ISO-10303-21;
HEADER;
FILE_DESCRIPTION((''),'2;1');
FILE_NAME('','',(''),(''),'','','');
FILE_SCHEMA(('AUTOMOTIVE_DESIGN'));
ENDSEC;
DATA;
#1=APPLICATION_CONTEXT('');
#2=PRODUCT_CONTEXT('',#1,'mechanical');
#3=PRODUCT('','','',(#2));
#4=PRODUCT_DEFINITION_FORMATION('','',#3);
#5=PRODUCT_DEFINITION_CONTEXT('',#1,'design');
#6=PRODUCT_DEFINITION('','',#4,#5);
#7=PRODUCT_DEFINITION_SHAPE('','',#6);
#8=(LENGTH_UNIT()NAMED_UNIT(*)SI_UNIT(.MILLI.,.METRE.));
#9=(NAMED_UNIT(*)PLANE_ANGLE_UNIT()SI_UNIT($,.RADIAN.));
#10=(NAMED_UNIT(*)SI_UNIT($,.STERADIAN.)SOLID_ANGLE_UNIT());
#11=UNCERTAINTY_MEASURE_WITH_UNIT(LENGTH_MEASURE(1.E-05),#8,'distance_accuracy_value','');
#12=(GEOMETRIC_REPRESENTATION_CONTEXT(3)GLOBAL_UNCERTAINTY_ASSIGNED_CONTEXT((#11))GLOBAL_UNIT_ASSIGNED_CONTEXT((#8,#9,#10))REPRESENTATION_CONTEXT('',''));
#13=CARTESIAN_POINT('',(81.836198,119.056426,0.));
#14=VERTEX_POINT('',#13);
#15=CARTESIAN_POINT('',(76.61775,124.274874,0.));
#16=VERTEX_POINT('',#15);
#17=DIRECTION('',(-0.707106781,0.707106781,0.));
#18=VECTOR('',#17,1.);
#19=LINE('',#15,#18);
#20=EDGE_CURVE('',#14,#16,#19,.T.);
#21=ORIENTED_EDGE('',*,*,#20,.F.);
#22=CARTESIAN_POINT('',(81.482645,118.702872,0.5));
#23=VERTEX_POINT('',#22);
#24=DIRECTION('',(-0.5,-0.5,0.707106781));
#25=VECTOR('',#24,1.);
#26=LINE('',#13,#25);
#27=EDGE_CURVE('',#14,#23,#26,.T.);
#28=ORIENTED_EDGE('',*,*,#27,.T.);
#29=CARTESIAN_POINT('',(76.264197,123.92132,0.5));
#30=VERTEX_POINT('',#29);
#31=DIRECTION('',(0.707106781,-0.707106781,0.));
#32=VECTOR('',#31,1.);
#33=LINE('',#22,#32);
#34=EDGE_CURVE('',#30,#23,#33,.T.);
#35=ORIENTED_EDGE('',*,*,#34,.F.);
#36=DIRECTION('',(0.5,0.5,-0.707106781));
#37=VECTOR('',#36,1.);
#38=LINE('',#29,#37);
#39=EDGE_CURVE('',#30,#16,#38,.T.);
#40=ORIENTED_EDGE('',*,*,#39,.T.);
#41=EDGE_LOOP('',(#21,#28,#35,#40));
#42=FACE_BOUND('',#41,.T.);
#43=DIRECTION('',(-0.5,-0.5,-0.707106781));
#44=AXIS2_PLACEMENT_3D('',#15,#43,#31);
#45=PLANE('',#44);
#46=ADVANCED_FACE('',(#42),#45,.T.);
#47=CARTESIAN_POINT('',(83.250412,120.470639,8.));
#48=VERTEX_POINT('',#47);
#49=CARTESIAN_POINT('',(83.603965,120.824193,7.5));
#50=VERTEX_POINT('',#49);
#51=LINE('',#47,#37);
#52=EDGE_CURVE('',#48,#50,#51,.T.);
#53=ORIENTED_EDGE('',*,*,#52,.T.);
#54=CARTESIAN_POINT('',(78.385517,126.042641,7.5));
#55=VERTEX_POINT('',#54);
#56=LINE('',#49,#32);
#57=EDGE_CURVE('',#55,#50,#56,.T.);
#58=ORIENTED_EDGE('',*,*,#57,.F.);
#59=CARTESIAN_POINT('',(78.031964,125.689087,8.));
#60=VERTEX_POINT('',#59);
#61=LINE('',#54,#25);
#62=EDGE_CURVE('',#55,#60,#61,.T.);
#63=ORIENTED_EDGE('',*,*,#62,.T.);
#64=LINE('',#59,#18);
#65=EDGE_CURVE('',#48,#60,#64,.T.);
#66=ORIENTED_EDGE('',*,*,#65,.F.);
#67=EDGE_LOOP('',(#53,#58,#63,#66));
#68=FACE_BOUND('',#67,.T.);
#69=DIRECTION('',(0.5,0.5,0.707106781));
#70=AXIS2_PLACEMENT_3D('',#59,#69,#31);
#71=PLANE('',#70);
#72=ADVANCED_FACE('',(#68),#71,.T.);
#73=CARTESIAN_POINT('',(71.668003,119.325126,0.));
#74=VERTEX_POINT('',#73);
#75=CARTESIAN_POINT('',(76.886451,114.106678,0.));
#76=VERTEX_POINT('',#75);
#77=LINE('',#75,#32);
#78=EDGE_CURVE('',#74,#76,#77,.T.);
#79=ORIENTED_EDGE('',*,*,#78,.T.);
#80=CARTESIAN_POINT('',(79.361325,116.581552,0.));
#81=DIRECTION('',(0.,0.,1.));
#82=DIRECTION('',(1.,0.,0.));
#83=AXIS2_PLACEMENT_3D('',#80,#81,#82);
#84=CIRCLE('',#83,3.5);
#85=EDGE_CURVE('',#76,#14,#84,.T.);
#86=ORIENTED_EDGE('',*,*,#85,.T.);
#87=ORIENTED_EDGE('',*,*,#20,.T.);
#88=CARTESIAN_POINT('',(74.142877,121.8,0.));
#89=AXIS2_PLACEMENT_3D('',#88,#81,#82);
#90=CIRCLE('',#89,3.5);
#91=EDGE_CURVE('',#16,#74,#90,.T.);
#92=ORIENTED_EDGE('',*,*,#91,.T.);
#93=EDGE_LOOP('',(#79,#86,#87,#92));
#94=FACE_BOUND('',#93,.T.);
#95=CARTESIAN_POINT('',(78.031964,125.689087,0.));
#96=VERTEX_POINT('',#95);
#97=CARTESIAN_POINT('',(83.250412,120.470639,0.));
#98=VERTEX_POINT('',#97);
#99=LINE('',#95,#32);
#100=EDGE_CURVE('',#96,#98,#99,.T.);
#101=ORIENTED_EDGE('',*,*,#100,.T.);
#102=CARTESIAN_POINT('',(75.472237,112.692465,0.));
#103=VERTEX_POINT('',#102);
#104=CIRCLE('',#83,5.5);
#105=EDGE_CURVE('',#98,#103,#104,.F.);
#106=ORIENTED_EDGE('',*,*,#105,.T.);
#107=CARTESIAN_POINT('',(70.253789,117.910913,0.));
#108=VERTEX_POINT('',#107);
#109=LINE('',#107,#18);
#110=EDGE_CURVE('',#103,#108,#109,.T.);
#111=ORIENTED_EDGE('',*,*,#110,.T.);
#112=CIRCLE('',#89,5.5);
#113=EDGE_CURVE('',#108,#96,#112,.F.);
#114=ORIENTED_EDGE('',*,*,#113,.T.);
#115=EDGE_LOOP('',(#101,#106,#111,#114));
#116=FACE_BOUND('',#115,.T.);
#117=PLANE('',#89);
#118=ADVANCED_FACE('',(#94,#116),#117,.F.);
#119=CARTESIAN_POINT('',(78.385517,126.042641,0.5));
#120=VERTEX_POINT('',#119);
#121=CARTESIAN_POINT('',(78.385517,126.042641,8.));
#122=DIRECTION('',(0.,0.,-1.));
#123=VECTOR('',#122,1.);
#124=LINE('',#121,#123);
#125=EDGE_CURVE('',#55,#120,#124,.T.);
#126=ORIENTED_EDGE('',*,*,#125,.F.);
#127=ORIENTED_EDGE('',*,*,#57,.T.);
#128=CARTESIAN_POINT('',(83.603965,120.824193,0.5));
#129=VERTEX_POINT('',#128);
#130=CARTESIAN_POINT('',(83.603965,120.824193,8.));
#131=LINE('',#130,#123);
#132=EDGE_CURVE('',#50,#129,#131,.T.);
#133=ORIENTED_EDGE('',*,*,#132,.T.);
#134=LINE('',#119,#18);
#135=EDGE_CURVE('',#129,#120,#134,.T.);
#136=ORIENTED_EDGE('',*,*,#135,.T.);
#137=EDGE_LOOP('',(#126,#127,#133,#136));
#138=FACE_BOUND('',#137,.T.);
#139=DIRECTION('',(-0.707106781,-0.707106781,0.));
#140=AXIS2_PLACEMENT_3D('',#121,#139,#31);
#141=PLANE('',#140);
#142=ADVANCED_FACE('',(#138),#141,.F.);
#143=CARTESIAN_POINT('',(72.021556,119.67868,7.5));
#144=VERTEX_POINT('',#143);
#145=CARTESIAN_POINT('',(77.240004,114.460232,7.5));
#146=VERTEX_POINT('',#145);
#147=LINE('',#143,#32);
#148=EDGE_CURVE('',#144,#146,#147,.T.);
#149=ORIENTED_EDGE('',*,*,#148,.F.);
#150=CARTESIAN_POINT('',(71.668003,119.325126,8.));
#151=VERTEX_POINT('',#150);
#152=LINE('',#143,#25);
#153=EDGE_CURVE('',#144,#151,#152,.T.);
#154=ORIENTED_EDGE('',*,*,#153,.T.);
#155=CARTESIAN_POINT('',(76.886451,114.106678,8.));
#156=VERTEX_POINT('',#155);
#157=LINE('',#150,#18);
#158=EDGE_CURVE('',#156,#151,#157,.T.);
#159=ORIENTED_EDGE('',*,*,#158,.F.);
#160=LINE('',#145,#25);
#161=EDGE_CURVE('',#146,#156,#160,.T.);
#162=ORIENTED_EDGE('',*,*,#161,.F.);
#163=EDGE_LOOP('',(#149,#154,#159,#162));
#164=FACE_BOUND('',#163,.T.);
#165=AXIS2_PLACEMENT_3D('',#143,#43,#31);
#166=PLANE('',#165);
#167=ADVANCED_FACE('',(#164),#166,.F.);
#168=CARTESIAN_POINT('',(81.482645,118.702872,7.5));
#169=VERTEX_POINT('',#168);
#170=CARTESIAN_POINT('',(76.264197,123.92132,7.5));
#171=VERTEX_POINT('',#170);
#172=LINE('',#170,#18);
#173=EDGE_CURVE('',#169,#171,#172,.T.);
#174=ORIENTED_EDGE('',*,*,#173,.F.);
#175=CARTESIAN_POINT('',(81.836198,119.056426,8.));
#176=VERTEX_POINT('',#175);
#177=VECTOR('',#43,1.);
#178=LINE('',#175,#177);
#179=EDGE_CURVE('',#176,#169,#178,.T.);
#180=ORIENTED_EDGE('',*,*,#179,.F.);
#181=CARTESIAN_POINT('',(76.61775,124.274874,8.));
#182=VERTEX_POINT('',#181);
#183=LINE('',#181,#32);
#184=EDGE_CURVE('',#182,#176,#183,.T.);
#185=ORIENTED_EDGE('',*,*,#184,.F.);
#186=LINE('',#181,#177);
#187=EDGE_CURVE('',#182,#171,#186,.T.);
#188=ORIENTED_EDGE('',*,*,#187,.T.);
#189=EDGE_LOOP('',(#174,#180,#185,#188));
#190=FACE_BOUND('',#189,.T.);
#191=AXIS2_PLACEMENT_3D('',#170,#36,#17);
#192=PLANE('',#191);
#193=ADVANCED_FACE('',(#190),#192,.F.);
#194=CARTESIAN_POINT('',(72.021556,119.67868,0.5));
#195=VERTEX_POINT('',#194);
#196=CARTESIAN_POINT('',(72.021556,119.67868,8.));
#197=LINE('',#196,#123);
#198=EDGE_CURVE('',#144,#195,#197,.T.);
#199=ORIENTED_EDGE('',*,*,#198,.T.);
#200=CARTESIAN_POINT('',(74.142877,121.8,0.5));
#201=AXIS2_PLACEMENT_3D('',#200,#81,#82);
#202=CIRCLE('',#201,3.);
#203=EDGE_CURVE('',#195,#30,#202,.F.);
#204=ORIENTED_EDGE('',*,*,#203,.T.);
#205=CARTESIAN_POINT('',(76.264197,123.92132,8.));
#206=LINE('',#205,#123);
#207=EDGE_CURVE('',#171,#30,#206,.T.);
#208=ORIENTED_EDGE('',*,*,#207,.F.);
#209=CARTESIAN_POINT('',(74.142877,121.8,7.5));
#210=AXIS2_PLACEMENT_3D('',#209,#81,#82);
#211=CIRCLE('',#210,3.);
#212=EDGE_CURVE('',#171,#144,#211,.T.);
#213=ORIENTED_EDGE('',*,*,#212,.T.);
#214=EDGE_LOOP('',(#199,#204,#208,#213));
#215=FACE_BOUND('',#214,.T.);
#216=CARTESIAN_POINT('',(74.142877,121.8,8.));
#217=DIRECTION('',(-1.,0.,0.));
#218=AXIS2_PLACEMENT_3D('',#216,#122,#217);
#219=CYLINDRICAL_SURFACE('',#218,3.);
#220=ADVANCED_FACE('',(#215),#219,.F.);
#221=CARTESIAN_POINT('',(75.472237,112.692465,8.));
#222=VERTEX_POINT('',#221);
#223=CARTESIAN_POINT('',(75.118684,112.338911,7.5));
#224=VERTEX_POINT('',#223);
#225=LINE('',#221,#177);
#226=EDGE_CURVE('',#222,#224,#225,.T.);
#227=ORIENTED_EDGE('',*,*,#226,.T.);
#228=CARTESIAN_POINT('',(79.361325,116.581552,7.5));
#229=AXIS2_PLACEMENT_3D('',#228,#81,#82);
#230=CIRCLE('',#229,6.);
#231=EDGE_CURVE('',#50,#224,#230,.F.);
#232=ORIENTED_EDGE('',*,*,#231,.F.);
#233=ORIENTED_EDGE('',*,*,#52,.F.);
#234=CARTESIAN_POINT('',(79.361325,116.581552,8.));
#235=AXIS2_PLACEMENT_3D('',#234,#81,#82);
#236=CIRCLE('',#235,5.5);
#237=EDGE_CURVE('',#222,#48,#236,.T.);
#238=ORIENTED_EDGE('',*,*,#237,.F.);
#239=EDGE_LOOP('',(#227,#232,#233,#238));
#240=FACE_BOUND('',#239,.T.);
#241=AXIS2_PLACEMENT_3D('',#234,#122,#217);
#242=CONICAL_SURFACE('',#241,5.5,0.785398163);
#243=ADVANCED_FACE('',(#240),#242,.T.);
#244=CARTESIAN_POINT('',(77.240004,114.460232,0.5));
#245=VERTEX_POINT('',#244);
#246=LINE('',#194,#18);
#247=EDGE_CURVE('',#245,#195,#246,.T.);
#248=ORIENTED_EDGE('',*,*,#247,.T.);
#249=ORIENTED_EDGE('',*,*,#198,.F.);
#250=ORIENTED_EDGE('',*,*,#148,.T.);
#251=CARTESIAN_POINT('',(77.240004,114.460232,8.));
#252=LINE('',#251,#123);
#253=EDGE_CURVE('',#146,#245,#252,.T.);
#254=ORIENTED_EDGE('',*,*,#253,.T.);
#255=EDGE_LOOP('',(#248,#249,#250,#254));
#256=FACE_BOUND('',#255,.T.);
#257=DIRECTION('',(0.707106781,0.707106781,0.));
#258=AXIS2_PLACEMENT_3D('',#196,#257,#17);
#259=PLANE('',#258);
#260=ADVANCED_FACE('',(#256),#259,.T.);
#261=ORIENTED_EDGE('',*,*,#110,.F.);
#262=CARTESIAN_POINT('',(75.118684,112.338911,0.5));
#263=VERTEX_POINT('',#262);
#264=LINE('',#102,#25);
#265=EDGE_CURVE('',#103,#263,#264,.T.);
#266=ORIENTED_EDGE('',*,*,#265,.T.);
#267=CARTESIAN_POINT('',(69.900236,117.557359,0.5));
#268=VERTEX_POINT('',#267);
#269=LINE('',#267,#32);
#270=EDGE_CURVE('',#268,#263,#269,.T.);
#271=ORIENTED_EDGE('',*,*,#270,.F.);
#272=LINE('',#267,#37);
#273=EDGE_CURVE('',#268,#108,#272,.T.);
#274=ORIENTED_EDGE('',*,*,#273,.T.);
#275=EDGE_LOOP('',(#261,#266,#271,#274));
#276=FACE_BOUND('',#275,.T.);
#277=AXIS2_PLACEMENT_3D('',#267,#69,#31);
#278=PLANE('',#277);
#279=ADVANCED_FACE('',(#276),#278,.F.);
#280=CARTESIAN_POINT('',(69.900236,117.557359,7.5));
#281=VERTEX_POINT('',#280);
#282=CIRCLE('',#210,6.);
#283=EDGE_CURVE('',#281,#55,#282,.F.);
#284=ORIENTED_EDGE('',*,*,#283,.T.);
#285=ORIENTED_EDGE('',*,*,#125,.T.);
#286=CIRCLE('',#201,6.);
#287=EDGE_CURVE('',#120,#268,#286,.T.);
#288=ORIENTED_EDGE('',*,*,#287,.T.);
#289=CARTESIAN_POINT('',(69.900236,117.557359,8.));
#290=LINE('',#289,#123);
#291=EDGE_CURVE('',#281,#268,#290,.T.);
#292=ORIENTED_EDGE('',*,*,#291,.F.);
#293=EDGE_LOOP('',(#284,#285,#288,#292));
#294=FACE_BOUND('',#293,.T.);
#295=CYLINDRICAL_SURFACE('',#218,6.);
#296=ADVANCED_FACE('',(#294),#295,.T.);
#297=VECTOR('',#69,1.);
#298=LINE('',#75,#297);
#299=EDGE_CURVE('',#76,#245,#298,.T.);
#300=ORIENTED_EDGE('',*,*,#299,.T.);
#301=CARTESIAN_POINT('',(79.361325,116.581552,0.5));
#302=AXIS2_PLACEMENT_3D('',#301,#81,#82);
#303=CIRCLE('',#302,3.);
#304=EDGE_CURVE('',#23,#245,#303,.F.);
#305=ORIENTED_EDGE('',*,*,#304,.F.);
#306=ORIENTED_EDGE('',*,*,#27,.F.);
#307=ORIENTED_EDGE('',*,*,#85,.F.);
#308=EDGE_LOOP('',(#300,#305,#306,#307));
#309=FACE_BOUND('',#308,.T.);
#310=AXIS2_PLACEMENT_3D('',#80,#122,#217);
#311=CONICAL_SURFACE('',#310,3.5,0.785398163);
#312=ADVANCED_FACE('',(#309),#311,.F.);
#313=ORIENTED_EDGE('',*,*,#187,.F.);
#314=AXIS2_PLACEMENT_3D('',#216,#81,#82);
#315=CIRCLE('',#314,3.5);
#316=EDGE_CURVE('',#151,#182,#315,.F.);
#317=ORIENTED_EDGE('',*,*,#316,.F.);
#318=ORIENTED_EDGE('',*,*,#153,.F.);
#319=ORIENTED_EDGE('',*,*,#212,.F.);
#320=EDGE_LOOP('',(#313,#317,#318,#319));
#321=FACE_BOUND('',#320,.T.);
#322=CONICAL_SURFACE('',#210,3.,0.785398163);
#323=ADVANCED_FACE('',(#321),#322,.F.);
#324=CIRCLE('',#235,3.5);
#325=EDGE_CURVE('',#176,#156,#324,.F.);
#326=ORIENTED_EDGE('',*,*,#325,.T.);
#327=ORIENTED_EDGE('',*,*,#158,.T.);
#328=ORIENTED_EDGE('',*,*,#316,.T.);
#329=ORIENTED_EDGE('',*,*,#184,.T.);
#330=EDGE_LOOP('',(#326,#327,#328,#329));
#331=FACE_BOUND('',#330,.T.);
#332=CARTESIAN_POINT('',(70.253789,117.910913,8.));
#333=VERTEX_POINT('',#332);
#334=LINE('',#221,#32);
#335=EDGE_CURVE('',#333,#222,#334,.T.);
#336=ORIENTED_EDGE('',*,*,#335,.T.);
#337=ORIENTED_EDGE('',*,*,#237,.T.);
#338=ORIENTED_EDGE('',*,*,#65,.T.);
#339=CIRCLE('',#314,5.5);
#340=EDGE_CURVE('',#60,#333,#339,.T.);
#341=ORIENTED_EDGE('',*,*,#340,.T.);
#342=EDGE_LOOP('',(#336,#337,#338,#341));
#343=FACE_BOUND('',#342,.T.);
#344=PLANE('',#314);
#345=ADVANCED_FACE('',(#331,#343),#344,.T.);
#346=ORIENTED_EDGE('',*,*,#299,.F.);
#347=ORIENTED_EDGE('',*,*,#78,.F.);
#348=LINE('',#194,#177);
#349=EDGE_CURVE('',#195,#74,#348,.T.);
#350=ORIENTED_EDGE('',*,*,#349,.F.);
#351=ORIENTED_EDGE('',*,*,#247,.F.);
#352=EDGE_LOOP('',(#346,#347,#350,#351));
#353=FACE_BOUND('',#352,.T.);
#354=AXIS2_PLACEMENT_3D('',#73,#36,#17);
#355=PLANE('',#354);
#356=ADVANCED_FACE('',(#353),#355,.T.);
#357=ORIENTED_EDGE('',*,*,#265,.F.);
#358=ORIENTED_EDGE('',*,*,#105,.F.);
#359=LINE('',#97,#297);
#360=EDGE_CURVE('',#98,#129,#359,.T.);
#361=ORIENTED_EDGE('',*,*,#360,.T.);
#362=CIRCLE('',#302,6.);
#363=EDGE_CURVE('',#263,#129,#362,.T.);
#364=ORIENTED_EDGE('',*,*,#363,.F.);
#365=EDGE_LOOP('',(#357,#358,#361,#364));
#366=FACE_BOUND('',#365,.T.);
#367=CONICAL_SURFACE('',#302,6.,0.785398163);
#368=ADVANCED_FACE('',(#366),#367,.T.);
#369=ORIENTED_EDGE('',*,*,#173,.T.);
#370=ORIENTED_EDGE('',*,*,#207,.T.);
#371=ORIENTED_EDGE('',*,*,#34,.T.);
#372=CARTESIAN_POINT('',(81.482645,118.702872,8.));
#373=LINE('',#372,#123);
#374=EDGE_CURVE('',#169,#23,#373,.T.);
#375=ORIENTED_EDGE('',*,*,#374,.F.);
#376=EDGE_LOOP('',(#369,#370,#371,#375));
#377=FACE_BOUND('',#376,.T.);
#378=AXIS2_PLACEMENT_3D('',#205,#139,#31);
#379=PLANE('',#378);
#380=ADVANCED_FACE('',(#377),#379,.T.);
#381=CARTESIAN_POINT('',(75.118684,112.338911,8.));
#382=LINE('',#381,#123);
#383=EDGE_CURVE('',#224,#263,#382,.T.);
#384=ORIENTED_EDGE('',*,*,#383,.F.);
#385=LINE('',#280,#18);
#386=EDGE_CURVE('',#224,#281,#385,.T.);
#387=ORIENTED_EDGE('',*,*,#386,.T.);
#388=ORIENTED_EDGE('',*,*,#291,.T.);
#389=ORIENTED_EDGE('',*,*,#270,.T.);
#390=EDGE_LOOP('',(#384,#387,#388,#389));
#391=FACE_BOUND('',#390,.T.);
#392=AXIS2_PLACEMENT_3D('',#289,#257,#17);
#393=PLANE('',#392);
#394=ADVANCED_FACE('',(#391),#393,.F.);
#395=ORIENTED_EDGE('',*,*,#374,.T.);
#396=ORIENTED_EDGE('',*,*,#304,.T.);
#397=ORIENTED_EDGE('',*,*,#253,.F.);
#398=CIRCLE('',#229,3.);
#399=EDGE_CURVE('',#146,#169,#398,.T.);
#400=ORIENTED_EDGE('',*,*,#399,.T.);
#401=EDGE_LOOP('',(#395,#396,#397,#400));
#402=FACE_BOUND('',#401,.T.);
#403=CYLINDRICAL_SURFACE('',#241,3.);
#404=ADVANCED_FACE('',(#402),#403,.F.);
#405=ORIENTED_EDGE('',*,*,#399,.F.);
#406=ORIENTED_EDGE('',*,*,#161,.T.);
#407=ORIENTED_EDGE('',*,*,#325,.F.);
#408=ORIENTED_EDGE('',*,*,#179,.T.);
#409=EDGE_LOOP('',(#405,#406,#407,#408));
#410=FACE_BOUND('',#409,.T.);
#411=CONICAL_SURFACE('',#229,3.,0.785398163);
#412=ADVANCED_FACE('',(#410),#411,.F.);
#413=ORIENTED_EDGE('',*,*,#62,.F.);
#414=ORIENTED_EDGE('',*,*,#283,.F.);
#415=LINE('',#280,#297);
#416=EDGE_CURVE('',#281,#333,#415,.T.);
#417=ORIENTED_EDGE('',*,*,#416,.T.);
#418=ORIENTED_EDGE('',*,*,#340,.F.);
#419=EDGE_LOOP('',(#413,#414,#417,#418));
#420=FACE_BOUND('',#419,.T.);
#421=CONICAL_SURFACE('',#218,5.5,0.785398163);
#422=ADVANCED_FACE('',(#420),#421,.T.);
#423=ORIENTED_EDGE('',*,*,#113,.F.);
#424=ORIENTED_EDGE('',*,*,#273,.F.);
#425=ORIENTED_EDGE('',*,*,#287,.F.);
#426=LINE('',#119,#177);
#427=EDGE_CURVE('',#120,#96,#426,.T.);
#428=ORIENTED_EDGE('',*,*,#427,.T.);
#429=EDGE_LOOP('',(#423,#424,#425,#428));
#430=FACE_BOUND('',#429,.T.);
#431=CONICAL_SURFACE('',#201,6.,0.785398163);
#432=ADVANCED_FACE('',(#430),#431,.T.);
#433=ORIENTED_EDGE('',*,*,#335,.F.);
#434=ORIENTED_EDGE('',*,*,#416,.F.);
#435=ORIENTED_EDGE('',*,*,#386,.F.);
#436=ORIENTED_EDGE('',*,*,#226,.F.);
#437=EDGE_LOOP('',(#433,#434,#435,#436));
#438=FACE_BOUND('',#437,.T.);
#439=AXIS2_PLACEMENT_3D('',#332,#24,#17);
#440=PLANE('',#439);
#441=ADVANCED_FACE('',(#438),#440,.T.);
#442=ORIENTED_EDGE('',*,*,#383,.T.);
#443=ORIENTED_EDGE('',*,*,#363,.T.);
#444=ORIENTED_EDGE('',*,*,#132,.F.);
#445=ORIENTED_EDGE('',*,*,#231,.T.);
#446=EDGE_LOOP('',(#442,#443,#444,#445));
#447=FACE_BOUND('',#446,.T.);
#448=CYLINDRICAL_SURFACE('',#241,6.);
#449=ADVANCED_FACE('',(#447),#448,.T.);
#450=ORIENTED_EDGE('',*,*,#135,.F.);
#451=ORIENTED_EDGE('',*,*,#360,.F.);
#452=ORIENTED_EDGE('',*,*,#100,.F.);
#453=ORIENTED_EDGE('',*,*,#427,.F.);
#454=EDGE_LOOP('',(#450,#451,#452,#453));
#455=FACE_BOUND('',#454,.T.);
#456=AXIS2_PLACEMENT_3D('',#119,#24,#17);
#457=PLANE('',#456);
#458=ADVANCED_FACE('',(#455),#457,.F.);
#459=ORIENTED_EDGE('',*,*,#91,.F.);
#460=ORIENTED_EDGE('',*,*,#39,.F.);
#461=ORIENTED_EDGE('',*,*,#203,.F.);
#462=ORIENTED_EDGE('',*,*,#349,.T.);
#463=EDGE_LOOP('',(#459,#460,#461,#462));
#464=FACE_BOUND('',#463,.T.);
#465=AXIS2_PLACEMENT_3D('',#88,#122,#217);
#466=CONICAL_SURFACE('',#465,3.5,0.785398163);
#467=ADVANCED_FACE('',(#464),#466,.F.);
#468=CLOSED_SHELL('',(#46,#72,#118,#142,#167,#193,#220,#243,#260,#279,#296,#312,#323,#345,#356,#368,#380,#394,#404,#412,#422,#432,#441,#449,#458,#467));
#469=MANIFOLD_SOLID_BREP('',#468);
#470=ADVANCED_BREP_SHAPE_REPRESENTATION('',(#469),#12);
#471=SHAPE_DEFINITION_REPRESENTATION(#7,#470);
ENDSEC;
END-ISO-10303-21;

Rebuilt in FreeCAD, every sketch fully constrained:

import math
import FreeCAD as App
import Part
import Sketcher

V = App.Vector
Q = App.Units.Quantity


def edges_at(feature, points):
    """Names of the edges that pass closest to the given points."""
    edges = feature.Shape.Edges
    near = lambda p: min(range(len(edges)), key=lambda i: edges[i].distToShape(Part.Vertex(*p))[0])
    return sorted({f"Edge{near(p) + 1}" for p in points})

doc = App.newDocument("Part")
body = doc.addObject("PartDesign::Body", "Body")

# Sketch on XY plane
sketch1 = body.newObject("Sketcher::SketchObject", "Sketch")
sketch1.AttachmentSupport = (doc.getObject("XY_Plane"), [""])
sketch1.MapMode = "FlatFace"
sketch1.addGeometry(Part.LineSegment(V(69.9, 117.6, 0), V(75.1, 112.3, 0)), False)
sketch1.addGeometry(Part.ArcOfCircle(Part.Circle(V(79.4, 116.6, 0), V(0, 0, 1), 6), math.radians(-135), math.radians(45)), False)
sketch1.addGeometry(Part.LineSegment(V(83.6, 120.8, 0), V(78.4, 126, 0)), False)
sketch1.addGeometry(Part.ArcOfCircle(Part.Circle(V(74.1, 121.8, 0), V(0, 0, 1), 6), math.radians(45), math.radians(225)), False)
sketch1.addGeometry(Part.LineSegment(V(77.2, 114.5, 0), V(72, 119.7, 0)), False)
sketch1.addGeometry(Part.ArcOfCircle(Part.Circle(V(74.1, 121.8, 0), V(0, 0, 1), 3), math.radians(45), math.radians(225)), False)
sketch1.addGeometry(Part.LineSegment(V(76.3, 123.9, 0), V(81.5, 118.7, 0)), False)
sketch1.addGeometry(Part.ArcOfCircle(Part.Circle(V(79.4, 116.6, 0), V(0, 0, 1), 3), math.radians(-135), math.radians(45)), False)
sketch1.addConstraint(Sketcher.Constraint("Tangent", 0, 2, 1, 1))
sketch1.addConstraint(Sketcher.Constraint("Tangent", 1, 2, 2, 1))
sketch1.addConstraint(Sketcher.Constraint("Tangent", 2, 2, 3, 1))
sketch1.addConstraint(Sketcher.Constraint("Tangent", 3, 2, 0, 1))
sketch1.addConstraint(Sketcher.Constraint("Tangent", 4, 2, 5, 2))
sketch1.addConstraint(Sketcher.Constraint("Tangent", 5, 1, 6, 1))
sketch1.addConstraint(Sketcher.Constraint("Tangent", 6, 2, 7, 2))
sketch1.addConstraint(Sketcher.Constraint("Tangent", 7, 1, 4, 1))
sketch1.addConstraint(Sketcher.Constraint("Coincident", 5, 3, 3, 3))
sketch1.addConstraint(Sketcher.Constraint("Coincident", 7, 3, 1, 3))
sketch1.addConstraint(Sketcher.Constraint("Equal", 1, 3))
sketch1.addConstraint(Sketcher.Constraint("Equal", 5, 7))
sketch1.addConstraint(Sketcher.Constraint("Radius", 1, Q("6 mm")))
sketch1.addConstraint(Sketcher.Constraint("Radius", 5, Q("3 mm")))
sketch1.addConstraint(Sketcher.Constraint("Angle", 0, Q("-45 deg")))
sketch1.addConstraint(Sketcher.Constraint("DistanceY", -1, 1, 3, 3, Q("121.8 mm")))
sketch1.addConstraint(Sketcher.Constraint("Distance", 0, Q("7.38 mm")))
sketch1.addConstraint(Sketcher.Constraint("DistanceX", -1, 1, 1, 3, Q("79.361325 mm")))
pad1 = body.newObject("PartDesign::Pad", "Pad")
pad1.Profile = sketch1
pad1.Length = 8
doc.recompute()

chamfer = body.newObject("PartDesign::Chamfer", "Chamfer")
chamfer.Base = (pad1, edges_at(pad1, [
    (83.604, 112.339, 8),
    (80.995, 123.433, 8),
    (72.022, 123.921, 0),
    (74.631, 117.069, 0),
    (81.483, 114.46, 0),
    (78.873, 121.312, 0),
    (72.022, 123.921, 8),
    (74.631, 117.069, 8),
    (81.483, 114.46, 8),
    (78.873, 121.312, 8),
    (69.9, 126.043, 8),
    (80.995, 123.433, 0),
    (83.604, 112.339, 0),
    (72.509, 114.948, 0),
    (69.9, 126.043, 0),
    (72.509, 114.948, 8),
]))
chamfer.Size = 0.5

doc.recompute()
